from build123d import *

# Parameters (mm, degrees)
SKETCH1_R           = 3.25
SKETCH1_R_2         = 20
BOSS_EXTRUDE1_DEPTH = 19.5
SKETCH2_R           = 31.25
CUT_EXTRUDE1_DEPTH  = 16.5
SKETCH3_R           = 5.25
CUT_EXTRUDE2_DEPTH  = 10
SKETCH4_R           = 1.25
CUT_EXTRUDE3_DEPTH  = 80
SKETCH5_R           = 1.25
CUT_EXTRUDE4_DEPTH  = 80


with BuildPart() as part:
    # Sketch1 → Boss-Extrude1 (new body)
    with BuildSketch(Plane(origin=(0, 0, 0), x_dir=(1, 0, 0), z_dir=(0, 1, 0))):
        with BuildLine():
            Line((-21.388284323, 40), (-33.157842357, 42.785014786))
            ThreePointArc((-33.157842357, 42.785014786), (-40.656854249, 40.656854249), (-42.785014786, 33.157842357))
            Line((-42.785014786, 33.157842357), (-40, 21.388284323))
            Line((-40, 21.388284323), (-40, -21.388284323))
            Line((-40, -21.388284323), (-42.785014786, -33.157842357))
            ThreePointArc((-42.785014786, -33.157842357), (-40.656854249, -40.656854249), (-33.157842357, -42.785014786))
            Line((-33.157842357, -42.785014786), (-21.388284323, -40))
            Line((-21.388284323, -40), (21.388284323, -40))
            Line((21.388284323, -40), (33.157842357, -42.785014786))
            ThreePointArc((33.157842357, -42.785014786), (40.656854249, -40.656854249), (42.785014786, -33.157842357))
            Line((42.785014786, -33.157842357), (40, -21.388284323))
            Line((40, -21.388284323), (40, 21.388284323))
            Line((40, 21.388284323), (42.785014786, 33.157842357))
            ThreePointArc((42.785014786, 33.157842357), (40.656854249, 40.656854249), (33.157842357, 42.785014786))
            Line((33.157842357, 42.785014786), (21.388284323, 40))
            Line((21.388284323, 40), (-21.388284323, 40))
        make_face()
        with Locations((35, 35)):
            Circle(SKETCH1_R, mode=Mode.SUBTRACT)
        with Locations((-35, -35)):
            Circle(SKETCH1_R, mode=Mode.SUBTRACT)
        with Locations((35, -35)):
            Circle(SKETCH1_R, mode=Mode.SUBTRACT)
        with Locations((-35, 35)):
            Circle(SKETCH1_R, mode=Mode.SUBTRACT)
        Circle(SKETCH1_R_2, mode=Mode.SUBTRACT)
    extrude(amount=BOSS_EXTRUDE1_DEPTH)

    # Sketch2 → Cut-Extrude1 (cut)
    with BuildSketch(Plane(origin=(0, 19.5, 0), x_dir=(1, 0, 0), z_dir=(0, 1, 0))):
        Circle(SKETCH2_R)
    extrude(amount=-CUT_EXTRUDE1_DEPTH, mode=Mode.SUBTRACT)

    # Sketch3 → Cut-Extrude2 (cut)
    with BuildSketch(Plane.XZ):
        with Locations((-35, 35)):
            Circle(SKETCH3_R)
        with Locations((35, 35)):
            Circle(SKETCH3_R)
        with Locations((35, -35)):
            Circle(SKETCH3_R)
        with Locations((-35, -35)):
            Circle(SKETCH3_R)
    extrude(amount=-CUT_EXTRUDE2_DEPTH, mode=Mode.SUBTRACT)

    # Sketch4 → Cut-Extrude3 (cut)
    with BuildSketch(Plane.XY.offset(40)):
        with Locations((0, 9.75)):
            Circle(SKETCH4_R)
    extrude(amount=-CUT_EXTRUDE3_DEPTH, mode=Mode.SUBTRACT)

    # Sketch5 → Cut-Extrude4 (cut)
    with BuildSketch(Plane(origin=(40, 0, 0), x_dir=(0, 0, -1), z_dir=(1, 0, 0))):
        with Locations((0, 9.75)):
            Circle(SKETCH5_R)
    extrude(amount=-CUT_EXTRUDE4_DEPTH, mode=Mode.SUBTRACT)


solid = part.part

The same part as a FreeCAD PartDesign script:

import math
import FreeCAD as App
import Part
import Sketcher
from FreeCAD import Vector

doc = App.newDocument("Part")
params = doc.addObject("Spreadsheet::Sheet", "Params")
for row, (alias, value) in enumerate([
    ("sketch1_diameter", "40 mm"),
    ("sketch1_radius", "8 mm"),
    ("sketch1_diameter2", "6.5 mm"),
    ("pad1_length", "19.5 mm"),
    ("sketch2_diameter", "62.5 mm"),
    ("pocket1_length", "16.5 mm"),
    ("sketch3_diameter", "10.5 mm"),
    ("pocket2_length", "10 mm"),
    ("sketch4_diameter", "2.5 mm"),
    ("pocket3_length", "80 mm"),
    ("sketch5_diameter", "2.5 mm"),
    ("pocket4_length", "80 mm"),
], start=1):
    params.set(f"A{row}", alias)
    params.set(f"B{row}", "=" + value)
    params.setAlias(f"B{row}", alias)

body = doc.addObject("PartDesign::Body", "Body")

# Sketch on XZ plane
sketch1 = body.newObject("Sketcher::SketchObject", "Sketch")
sketch1.AttachmentSupport = (doc.getObject("XZ_Plane"), [""])
sketch1.MapMode = "FlatFace"
sketch1.addGeometry([
    Part.LineSegment(Vector(-21.388284, -40, 0), Vector(-33.157842, -42.785015, 0)),  # 0
    Part.ArcOfCircle(Part.Circle(Vector(-35, -35, 0), Vector(0, 0, 1), 8), math.radians(166.687049), math.radians(283.312951)),  # 1
    Part.LineSegment(Vector(-42.785015, -33.157842, 0), Vector(-40, -21.388284, 0)),  # 2
    Part.LineSegment(Vector(-40, -21.388284, 0), Vector(-40, 21.388284, 0)),  # 3
    Part.LineSegment(Vector(-40, 21.388284, 0), Vector(-42.785015, 33.157842, 0)),  # 4
    Part.ArcOfCircle(Part.Circle(Vector(-35, 35, 0), Vector(0, 0, 1), 8), math.radians(76.687049), math.radians(193.312951)),  # 5
    Part.LineSegment(Vector(-33.157842, 42.785015, 0), Vector(-21.388284, 40, 0)),  # 6
    Part.LineSegment(Vector(-21.388284, 40, 0), Vector(21.388284, 40, 0)),  # 7
    Part.LineSegment(Vector(21.388284, 40, 0), Vector(33.157842, 42.785015, 0)),  # 8
    Part.ArcOfCircle(Part.Circle(Vector(35, 35, 0), Vector(0, 0, 1), 8), math.radians(-13.312951), math.radians(103.312951)),  # 9
    Part.LineSegment(Vector(42.785015, 33.157842, 0), Vector(40, 21.388284, 0)),  # 10
    Part.LineSegment(Vector(40, 21.388284, 0), Vector(40, -21.388284, 0)),  # 11
    Part.LineSegment(Vector(40, -21.388284, 0), Vector(42.785015, -33.157842, 0)),  # 12
    Part.ArcOfCircle(Part.Circle(Vector(35, -35, 0), Vector(0, 0, 1), 8), math.radians(-103.312951), math.radians(13.312951)),  # 13
    Part.LineSegment(Vector(33.157842, -42.785015, 0), Vector(21.388284, -40, 0)),  # 14
    Part.LineSegment(Vector(21.388284, -40, 0), Vector(-21.388284, -40, 0)),  # 15
    Part.Circle(Vector(-35, 35, 0), Vector(0, 0, 1), 3.25),  # 16
    Part.Circle(Vector(35, 35, 0), Vector(0, 0, 1), 3.25),  # 17
    Part.Circle(Vector(-35, -35, 0), Vector(0, 0, 1), 3.25),  # 18
    Part.Circle(Vector(0, 0, 0), Vector(0, 0, 1), 20),  # 19
    Part.Circle(Vector(35, -35, 0), Vector(0, 0, 1), 3.25),  # 20
], False)
sketch1.addConstraint([
    Sketcher.Constraint("Tangent", 0, 2, 1, 2),
    Sketcher.Constraint("Tangent", 1, 1, 2, 1),
    Sketcher.Constraint("Coincident", 2, 2, 3, 1),
    Sketcher.Constraint("Coincident", 3, 2, 4, 1),
    Sketcher.Constraint("Tangent", 4, 2, 5, 2),
    Sketcher.Constraint("Tangent", 5, 1, 6, 1),
    Sketcher.Constraint("Coincident", 6, 2, 7, 1),
    Sketcher.Constraint("Coincident", 7, 2, 8, 1),
    Sketcher.Constraint("Tangent", 8, 2, 9, 2),
    Sketcher.Constraint("Tangent", 9, 1, 10, 1),
    Sketcher.Constraint("Coincident", 10, 2, 11, 1),
    Sketcher.Constraint("Coincident", 11, 2, 12, 1),
    Sketcher.Constraint("Tangent", 12, 2, 13, 2),
    Sketcher.Constraint("Tangent", 13, 1, 14, 1),
    Sketcher.Constraint("Coincident", 14, 2, 15, 1),
    Sketcher.Constraint("Coincident", 15, 2, 0, 1),
    Sketcher.Constraint("Vertical", 3),
    Sketcher.Constraint("Horizontal", 7),
    Sketcher.Constraint("Vertical", 11),
    Sketcher.Constraint("Horizontal", 15),
    Sketcher.Constraint("Coincident", 19, 3, -1, 1),
    Sketcher.Constraint("Coincident", 16, 3, 5, 3),
    Sketcher.Constraint("Coincident", 17, 3, 9, 3),
    Sketcher.Constraint("Coincident", 18, 3, 1, 3),
    Sketcher.Constraint("Coincident", 20, 3, 13, 3),
    Sketcher.Constraint("Equal", 1, 5),
    Sketcher.Constraint("Equal", 5, 9),
    Sketcher.Constraint("Equal", 9, 13),
    Sketcher.Constraint("Equal", 16, 17),
    Sketcher.Constraint("Equal", 17, 18),
    Sketcher.Constraint("Equal", 18, 20),
    Sketcher.Constraint("Symmetric", 1, 3, 9, 3, -1, 1),
    Sketcher.Constraint("Symmetric", 5, 3, 13, 3, -1, 1),
    Sketcher.Constraint("Symmetric", 2, 2, 10, 2, -1, 1),
    Sketcher.Constraint("Symmetric", 6, 2, 14, 2, -1, 1),
    Sketcher.Constraint("Symmetric", 5, 3, 9, 3, -2),
    Sketcher.Constraint("Perpendicular", 0, 4),
    Sketcher.Constraint("Perpendicular", 2, 6),
    Sketcher.Constraint("Perpendicular", 4, 8),
    Sketcher.Constraint("Perpendicular", 8, 12),
    Sketcher.Constraint("Horizontal", 5, 1, 8, 2),
    Sketcher.Constraint("Equal", 15, 3),
    Sketcher.Constraint("Equal", 0, 2),
    Sketcher.Constraint("Diameter", 19, 40.0),
    Sketcher.Constraint("Radius", 1, 8.0),
    Sketcher.Constraint("Diameter", 16, 6.5),
    Sketcher.Constraint("DistanceX", 1, 3, -1, 1, 35.0),
    Sketcher.Constraint("DistanceX", 2, 2, -1, 1, 40.0),
    Sketcher.Constraint("DistanceX", 7, 1, 7, 2, 42.776569),
])
sketch1.setExpression("Constraints[43]", "Params.sketch1_diameter")
sketch1.setExpression("Constraints[44]", "Params.sketch1_radius")
sketch1.setExpression("Constraints[45]", "Params.sketch1_diameter2")
pad1 = body.newObject("PartDesign::Pad", "Pad")
pad1.Profile = sketch1
pad1.setExpression("Length", "Params.pad1_length")
pad1.Reversed = True

# Sketch on XZ plane
sketch2 = body.newObject("Sketcher::SketchObject", "Sketch001")
sketch2.AttachmentSupport = (doc.getObject("XZ_Plane"), [""])
sketch2.MapMode = "FlatFace"
sketch2.AttachmentOffset = App.Placement(Vector(0, 0, -19.5), App.Rotation())
sketch2.addGeometry(Part.Circle(Vector(0, 0, 0), Vector(0, 0, 1), 31.25), False)
sketch2.addConstraint([
    Sketcher.Constraint("Coincident", 0, 3, -1, 1),
    Sketcher.Constraint("Diameter", 0, 62.5),
])
sketch2.setExpression("Constraints[1]", "Params.sketch2_diameter")
pocket1 = body.newObject("PartDesign::Pocket", "Pocket")
pocket1.Profile = sketch2
pocket1.setExpression("Length", "Params.pocket1_length")
pocket1.Reversed = True

# Sketch on XZ plane
sketch3 = body.newObject("Sketcher::SketchObject", "Sketch002")
sketch3.AttachmentSupport = (doc.getObject("XZ_Plane"), [""])
sketch3.MapMode = "FlatFace"
sketch3.addGeometry([
    Part.Circle(Vector(-35, 35, 0), Vector(0, 0, 1), 5.25),
    Part.Circle(Vector(35, 35, 0), Vector(0, 0, 1), 5.25),
    Part.Circle(Vector(35, -35, 0), Vector(0, 0, 1), 5.25),
    Part.Circle(Vector(-35, -35, 0), Vector(0, 0, 1), 5.25),
], False)
sketch3.addConstraint([
    Sketcher.Constraint("Equal", 0, 1),
    Sketcher.Constraint("Equal", 1, 2),
    Sketcher.Constraint("Equal", 2, 3),
    Sketcher.Constraint("Symmetric", 0, 3, 2, 3, -1, 1),
    Sketcher.Constraint("Symmetric", 1, 3, 3, 3, -1, 1),
    Sketcher.Constraint("Symmetric", 0, 3, 1, 3, -2),
    Sketcher.Constraint("Diameter", 0, 10.5),
    Sketcher.Constraint("DistanceX", 0, 3, -1, 1, 35.0),
    Sketcher.Constraint("DistanceY", -1, 1, 0, 3, 35.0),
])
sketch3.setExpression("Constraints[6]", "Params.sketch3_diameter")
pocket2 = body.newObject("PartDesign::Pocket", "Pocket001")
pocket2.Profile = sketch3
pocket2.setExpression("Length", "Params.pocket2_length")

# Sketch on XY plane
sketch4 = body.newObject("Sketcher::SketchObject", "Sketch003")
sketch4.AttachmentSupport = (doc.getObject("XY_Plane"), [""])
sketch4.MapMode = "FlatFace"
sketch4.AttachmentOffset = App.Placement(Vector(0, 0, 40), App.Rotation())
sketch4.addGeometry(Part.Circle(Vector(0, 9.75, 0), Vector(0, 0, 1), 1.25), False)
sketch4.addConstraint([
    Sketcher.Constraint("PointOnObject", 0, 3, -2),
    Sketcher.Constraint("Diameter", 0, 2.5),
    Sketcher.Constraint("DistanceY", -1, 1, 0, 3, 9.75),
])
sketch4.setExpression("Constraints[1]", "Params.sketch4_diameter")
pocket3 = body.newObject("PartDesign::Pocket", "Pocket002")
pocket3.Profile = sketch4
pocket3.setExpression("Length", "Params.pocket3_length")

# Sketch on YZ plane
sketch5 = body.newObject("Sketcher::SketchObject", "Sketch004")
sketch5.AttachmentSupport = (doc.getObject("YZ_Plane"), [""])
sketch5.MapMode = "FlatFace"
sketch5.AttachmentOffset = App.Placement(Vector(0, 0, 40), App.Rotation())
sketch5.addGeometry(Part.Circle(Vector(9.75, 0, 0), Vector(0, 0, 1), 1.25), False)
sketch5.addConstraint([
    Sketcher.Constraint("PointOnObject", 0, 3, -1),
    Sketcher.Constraint("Diameter", 0, 2.5),
    Sketcher.Constraint("DistanceX", -1, 1, 0, 3, 9.75),
])
sketch5.setExpression("Constraints[1]", "Params.sketch5_diameter")
pocket4 = body.newObject("PartDesign::Pocket", "Pocket003")
pocket4.Profile = sketch5
pocket4.setExpression("Length", "Params.pocket4_length")

doc.recompute()
